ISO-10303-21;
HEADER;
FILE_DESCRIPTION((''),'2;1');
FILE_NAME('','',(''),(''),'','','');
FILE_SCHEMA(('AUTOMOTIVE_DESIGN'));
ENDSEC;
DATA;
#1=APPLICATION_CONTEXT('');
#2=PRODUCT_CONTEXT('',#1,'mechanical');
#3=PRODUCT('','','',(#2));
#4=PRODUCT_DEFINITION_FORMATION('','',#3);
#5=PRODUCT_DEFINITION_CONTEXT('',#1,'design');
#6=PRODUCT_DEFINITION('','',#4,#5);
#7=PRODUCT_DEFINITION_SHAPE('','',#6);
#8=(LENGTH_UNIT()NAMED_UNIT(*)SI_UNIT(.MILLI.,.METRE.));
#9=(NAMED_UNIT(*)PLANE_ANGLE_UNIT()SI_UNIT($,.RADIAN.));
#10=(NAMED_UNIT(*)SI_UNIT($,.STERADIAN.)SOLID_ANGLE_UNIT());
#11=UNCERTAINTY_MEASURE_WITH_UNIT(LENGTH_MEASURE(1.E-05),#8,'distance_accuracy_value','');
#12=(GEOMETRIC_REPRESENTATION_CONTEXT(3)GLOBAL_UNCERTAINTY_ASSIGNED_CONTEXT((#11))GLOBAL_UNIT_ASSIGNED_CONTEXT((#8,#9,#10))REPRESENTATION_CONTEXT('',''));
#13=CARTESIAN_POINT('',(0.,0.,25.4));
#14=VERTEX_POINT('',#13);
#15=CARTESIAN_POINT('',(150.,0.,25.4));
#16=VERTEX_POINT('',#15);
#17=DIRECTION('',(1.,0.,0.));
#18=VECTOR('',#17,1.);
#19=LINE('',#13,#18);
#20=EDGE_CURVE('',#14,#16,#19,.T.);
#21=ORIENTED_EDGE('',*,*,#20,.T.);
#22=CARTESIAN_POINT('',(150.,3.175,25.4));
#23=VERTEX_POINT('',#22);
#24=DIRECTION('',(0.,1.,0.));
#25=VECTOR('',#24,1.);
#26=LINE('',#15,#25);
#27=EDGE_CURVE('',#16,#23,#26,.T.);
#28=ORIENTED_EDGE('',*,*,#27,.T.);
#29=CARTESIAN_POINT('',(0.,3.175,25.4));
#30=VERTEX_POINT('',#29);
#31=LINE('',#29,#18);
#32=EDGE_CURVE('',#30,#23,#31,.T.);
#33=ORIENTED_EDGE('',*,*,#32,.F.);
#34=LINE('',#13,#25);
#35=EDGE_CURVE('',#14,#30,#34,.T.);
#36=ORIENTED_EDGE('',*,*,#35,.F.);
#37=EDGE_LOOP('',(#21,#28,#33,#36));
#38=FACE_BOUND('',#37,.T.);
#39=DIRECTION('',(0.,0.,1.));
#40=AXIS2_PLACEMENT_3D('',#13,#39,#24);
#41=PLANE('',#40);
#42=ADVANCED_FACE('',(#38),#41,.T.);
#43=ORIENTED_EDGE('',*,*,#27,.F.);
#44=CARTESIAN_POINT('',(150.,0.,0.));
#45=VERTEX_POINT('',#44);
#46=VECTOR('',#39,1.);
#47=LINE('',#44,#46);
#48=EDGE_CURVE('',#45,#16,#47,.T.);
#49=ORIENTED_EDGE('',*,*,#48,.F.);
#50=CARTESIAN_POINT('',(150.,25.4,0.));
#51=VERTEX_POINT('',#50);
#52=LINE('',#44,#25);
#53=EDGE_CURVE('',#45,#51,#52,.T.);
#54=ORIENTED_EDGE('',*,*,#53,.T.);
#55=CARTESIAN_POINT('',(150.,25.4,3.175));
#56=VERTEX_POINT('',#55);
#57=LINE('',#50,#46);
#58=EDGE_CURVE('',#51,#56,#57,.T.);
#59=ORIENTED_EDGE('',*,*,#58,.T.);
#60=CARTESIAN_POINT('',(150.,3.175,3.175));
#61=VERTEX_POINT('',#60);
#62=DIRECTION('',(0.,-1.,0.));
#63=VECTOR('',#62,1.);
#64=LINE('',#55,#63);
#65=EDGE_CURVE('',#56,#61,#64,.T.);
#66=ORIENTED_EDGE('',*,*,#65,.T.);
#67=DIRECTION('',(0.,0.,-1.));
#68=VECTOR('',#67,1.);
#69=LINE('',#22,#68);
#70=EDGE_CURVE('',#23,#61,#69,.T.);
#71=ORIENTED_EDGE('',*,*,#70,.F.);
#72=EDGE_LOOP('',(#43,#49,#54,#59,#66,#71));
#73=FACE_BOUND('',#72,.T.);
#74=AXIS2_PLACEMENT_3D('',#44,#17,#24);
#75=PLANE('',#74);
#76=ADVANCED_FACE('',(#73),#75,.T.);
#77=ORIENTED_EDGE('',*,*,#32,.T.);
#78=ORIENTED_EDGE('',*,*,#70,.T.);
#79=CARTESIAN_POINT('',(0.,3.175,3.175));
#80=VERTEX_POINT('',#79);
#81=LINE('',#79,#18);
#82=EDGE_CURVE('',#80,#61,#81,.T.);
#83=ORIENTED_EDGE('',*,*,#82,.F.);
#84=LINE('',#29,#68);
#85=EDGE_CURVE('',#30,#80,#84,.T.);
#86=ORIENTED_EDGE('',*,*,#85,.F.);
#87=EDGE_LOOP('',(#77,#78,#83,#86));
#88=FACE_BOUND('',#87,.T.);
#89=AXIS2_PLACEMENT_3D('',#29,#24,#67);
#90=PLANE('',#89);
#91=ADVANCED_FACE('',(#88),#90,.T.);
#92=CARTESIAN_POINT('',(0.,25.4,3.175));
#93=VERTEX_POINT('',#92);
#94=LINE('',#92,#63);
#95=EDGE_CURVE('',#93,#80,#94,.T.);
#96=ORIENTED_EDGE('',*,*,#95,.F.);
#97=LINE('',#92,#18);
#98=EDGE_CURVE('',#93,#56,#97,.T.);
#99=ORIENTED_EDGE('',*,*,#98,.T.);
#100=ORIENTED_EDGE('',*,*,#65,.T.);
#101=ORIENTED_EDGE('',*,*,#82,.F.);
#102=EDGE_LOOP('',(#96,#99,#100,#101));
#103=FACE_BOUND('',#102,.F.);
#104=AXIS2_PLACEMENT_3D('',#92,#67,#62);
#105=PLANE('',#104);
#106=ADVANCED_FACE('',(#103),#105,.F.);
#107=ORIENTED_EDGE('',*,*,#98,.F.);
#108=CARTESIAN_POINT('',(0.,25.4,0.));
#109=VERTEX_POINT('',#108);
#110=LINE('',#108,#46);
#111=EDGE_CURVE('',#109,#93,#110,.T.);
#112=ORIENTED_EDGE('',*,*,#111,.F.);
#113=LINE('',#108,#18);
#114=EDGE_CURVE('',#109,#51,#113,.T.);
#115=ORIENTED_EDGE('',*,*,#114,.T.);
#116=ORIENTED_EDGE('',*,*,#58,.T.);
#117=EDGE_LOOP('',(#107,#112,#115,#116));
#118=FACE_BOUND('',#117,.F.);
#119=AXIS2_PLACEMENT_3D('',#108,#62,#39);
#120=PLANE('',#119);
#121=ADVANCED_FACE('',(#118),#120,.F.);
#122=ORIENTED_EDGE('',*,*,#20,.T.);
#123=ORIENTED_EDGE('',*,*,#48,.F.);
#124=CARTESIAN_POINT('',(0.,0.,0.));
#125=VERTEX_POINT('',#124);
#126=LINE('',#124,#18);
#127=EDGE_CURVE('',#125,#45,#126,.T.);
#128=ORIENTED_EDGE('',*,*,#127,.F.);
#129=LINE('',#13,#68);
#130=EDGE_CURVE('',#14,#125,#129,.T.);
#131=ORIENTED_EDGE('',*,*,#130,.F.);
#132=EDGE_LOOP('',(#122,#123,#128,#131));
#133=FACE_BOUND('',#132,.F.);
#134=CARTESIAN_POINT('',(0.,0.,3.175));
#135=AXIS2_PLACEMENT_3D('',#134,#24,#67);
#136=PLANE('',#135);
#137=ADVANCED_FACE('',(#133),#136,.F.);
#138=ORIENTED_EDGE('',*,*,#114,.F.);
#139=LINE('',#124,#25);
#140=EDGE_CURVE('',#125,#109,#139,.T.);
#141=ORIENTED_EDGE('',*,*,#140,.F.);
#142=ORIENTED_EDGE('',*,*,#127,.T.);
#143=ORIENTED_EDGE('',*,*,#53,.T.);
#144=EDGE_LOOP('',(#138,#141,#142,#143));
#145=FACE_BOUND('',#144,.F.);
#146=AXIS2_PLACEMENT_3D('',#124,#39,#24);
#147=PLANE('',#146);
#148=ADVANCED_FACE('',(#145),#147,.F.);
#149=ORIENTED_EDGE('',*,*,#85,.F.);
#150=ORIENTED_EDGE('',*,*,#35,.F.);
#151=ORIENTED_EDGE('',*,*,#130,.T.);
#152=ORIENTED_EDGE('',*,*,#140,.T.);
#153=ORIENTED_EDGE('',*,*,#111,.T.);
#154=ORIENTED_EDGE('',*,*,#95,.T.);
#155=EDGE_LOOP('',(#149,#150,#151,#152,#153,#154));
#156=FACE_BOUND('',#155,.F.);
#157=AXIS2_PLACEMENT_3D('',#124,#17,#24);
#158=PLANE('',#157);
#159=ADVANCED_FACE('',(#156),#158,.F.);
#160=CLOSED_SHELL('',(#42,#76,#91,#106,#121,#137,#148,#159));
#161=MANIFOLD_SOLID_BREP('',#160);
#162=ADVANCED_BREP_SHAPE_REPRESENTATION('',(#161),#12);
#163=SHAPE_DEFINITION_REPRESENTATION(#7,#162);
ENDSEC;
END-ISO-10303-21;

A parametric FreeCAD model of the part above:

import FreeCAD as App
import Part
import Sketcher

V = App.Vector
Q = App.Units.Quantity


def add_polygon(sketch, points):
    """Adds a closed chain of lines whose ends are joined by coincident constraints."""
    first, n = sketch.GeometryCount, len(points)
    for a, b in zip(points, points[1:] + points[:1]):
        sketch.addGeometry(Part.LineSegment(App.Vector(*a, 0), App.Vector(*b, 0)), False)
    for i in range(n):
        sketch.addConstraint(Sketcher.Constraint("Coincident", first + i, 2, first + (i + 1) % n, 1))

doc = App.newDocument("Part")
params = doc.addObject("Spreadsheet::Sheet", "Params")
for row, (alias, value) in enumerate([
    ("sketch1_width", "1 in"),
    ("sketch1_width2", "0.125 in"),
    ("pad1_length", "5.9055118 in"),
], start=1):
    params.set(f"A{row}", alias)
    params.set(f"B{row}", "=" + value)
    params.setAlias(f"B{row}", alias)

body = doc.addObject("PartDesign::Body", "Body")

sketch1 = body.newObject("Sketcher::SketchObject", "Sketch")
sketch1.AttachmentSupport = (doc.getObject("YZ_Plane"), [""])
sketch1.MapMode = "FlatFace"
add_polygon(sketch1, [(0, 0), (25.4, 0), (25.4, 3.2), (3.2, 3.2), (3.2, 25.4), (0, 25.4)])
sketch1.addConstraint(Sketcher.Constraint("Horizontal", 0))
sketch1.addConstraint(Sketcher.Constraint("Vertical", 1))
sketch1.addConstraint(Sketcher.Constraint("Horizontal", 2))
sketch1.addConstraint(Sketcher.Constraint("Vertical", 3))
sketch1.addConstraint(Sketcher.Constraint("Horizontal", 4))
sketch1.addConstraint(Sketcher.Constraint("Vertical", 5))
sketch1.addConstraint(Sketcher.Constraint("Coincident", 5, 2, -1, 1))
sketch1.addConstraint(Sketcher.Constraint("Equal", 4, 1))
sketch1.addConstraint(Sketcher.Constraint("Equal", 2, 3))
sketch1.addConstraint(Sketcher.Constraint("DistanceX", 0, 1, 0, 2, Q("1 in")))
sketch1.addConstraint(Sketcher.Constraint("DistanceX", 4, 2, 4, 1, Q("0.125 in")))
sketch1.setExpression("Constraints[15]", "Params.sketch1_width")
sketch1.setExpression("Constraints[16]", "Params.sketch1_width2")
pad1 = body.newObject("PartDesign::Pad", "Pad")
pad1.Profile = sketch1
pad1.setExpression("Length", "Params.pad1_length")

doc.recompute()
